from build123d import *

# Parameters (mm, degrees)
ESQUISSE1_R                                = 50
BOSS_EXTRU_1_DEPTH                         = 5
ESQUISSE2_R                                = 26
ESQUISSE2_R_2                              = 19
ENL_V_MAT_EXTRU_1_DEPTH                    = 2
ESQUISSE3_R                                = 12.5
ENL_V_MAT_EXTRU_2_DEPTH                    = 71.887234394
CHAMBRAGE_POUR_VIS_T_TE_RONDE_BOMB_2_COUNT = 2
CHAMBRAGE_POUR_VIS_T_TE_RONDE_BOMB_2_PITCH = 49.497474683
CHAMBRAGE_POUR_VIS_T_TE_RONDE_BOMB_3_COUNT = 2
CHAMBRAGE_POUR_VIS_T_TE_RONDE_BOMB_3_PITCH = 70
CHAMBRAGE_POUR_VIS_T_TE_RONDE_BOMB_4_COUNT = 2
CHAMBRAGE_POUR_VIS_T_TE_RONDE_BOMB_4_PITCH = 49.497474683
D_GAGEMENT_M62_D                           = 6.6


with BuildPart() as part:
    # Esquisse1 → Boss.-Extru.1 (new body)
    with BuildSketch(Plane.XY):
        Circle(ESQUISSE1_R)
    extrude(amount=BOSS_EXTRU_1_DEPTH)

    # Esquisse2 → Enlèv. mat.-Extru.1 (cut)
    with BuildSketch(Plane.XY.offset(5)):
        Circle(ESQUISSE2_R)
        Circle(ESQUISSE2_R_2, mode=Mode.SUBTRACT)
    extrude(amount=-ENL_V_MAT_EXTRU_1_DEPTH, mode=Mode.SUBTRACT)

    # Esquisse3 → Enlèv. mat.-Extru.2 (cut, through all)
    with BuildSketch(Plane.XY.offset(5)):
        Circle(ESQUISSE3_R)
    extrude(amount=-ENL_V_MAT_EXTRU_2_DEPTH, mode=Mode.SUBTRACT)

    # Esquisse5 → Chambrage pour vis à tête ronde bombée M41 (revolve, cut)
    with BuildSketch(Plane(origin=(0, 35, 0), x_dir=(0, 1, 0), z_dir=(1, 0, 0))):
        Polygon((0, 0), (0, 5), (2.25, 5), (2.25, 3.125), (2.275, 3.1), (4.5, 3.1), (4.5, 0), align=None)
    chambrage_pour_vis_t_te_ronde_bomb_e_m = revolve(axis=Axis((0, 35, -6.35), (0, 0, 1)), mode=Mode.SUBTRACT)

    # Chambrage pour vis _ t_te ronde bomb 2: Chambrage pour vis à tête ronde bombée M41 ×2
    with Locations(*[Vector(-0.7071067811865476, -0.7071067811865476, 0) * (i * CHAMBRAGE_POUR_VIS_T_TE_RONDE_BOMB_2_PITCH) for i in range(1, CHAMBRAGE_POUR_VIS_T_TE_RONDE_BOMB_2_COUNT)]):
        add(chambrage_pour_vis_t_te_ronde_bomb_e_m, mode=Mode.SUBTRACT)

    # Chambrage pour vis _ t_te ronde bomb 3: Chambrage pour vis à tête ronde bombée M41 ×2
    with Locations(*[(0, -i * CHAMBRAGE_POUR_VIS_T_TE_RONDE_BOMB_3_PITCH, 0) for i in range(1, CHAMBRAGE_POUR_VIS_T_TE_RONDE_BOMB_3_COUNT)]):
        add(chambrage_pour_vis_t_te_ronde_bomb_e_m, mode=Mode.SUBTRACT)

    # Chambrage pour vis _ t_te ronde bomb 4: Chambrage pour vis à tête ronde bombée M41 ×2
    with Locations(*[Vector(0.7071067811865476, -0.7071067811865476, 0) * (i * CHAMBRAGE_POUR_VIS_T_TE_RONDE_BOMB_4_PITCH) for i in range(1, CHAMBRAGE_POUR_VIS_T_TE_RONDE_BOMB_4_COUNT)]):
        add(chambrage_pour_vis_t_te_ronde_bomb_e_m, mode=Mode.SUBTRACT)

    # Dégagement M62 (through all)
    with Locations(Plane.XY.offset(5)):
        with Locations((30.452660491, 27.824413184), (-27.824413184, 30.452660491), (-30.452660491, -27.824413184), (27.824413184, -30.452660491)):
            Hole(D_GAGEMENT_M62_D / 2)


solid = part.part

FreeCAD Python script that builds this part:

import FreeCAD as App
import Part
import Sketcher
Q = App.Units.Quantity


def add_polygon(sketch, points):
    """Adds a closed chain of lines whose ends are joined by coincident constraints."""
    first, n = sketch.GeometryCount, len(points)
    for a, b in zip(points, points[1:] + points[:1]):
        sketch.addGeometry(Part.LineSegment(App.Vector(*a, 0), App.Vector(*b, 0)), False)
    for i in range(n):
        sketch.addConstraint(Sketcher.Constraint("Coincident", first + i, 2, first + (i + 1) % n, 1))

doc = App.newDocument("Part")
body = doc.addObject("PartDesign::Body", "Body")

sketch1 = body.newObject("Sketcher::SketchObject", "Sketch")
sketch1.AttachmentSupport = (doc.getObject("XY_Plane"), [""])
sketch1.MapMode = "FlatFace"
sketch1.addGeometry(Part.Circle(App.Vector(0, 0, 0), App.Vector(0, 0, 1), 50), False)
sketch1.addConstraint([
    Sketcher.Constraint("Coincident", 0, 3, -1, 1),
    Sketcher.Constraint("Diameter", 0, 100.0),
])
pad1 = body.newObject("PartDesign::Pad", "Pad")
pad1.Profile = sketch1
pad1.Length = 5

sketch2 = body.newObject("Sketcher::SketchObject", "Sketch001")
sketch2.AttachmentSupport = (doc.getObject("XY_Plane"), [""])
sketch2.MapMode = "FlatFace"
sketch2.AttachmentOffset = App.Placement(App.Vector(0, 0, 5), App.Rotation())
sketch2.addGeometry([
    Part.Circle(App.Vector(0, 0, 0), App.Vector(0, 0, 1), 26),
    Part.Circle(App.Vector(0, 0, 0), App.Vector(0, 0, 1), 19),
], False)
sketch2.addConstraint([
    Sketcher.Constraint("Coincident", 0, 3, -1, 1),
    Sketcher.Constraint("Coincident", 1, 3, -1, 1),
    Sketcher.Constraint("Diameter", 0, 52.0),
    Sketcher.Constraint("Diameter", 1, 38.0),
])
pocket1 = body.newObject("PartDesign::Pocket", "Pocket")
pocket1.Profile = sketch2
pocket1.Length = 2

sketch3 = body.newObject("Sketcher::SketchObject", "Sketch002")
sketch3.AttachmentSupport = (doc.getObject("XY_Plane"), [""])
sketch3.MapMode = "FlatFace"
sketch3.AttachmentOffset = App.Placement(App.Vector(0, 0, 5), App.Rotation())
sketch3.addGeometry(Part.Circle(App.Vector(0, 0, 0), App.Vector(0, 0, 1), 12), False)
sketch3.addConstraint([
    Sketcher.Constraint("Coincident", 0, 3, -1, 1),
    Sketcher.Constraint("Diameter", 0, 25.0),
])
pocket2 = body.newObject("PartDesign::Pocket", "Pocket001")
pocket2.Profile = sketch3
pocket2.Type = "ThroughAll"

sketch4 = body.newObject("Sketcher::SketchObject", "Sketch003")
sketch4.AttachmentSupport = (doc.getObject("YZ_Plane"), [""])
sketch4.MapMode = "FlatFace"
add_polygon(sketch4, [(35, 5), (35, 0), (39.5, 0), (39.5, 3.1), (37.275, 3.1), (37.25, 3.125), (37.25, 5)])
sketch4.addGeometry(Part.LineSegment(App.Vector(35, 0, 0), App.Vector(35, 5, 0)), True)
sketch4.addConstraint([
    Sketcher.Constraint("Vertical", 0),
    Sketcher.Constraint("Horizontal", 1),
    Sketcher.Constraint("Vertical", 2),
    Sketcher.Constraint("Horizontal", 3),
    Sketcher.Constraint("Vertical", 5),
    Sketcher.Constraint("Horizontal", 6),
    Sketcher.Constraint("Vertical", 7),
    Sketcher.Constraint("Coincident", 7, 1, 0, 2),
    Sketcher.Constraint("PointOnObject", 0, 2, -1),
    Sketcher.Constraint("Horizontal", 5, 2, 7, 2),
    Sketcher.Constraint("DistanceY", 0, 2, 0, 1, 5.0),
    Sketcher.Constraint("Angle", 4, Q("135 deg")),
    Sketcher.Constraint("DistanceX", 1, 1, 1, 2, 4.5),
    Sketcher.Constraint("DistanceY", 2, 1, 2, 2, 3.1),
    Sketcher.Constraint("DistanceX", -1, 1, 0, 2, 35.0),
    Sketcher.Constraint("DistanceX", 6, 2, 6, 1, 2.25),
    Sketcher.Constraint("DistanceX", 3, 2, 3, 1, 2.225),
])
groove = body.newObject("PartDesign::Groove", "Groove")
groove.Profile = sketch4
groove.ReferenceAxis = (sketch4, ["Axis0"])
groove.Angle = 360
doc.recompute()

datumline = body.newObject("PartDesign::Line", "DatumLine")
datumline.Placement = App.Placement(App.Vector(0, 0, 0), App.Rotation(App.Vector(0, 0, 1), App.Vector(-0.707106781, -0.707106781, 0)))
linearpattern = body.newObject("PartDesign::LinearPattern", "LinearPattern")
linearpattern.Originals = [groove]
linearpattern.Direction = (datumline, [""])
linearpattern.Mode = "offset"
linearpattern.Offset = 49.497475
linearpattern.Occurrences = 2
body.Tip = linearpattern
doc.recompute()

linearpattern2 = body.newObject("PartDesign::LinearPattern", "LinearPattern001")
linearpattern2.Originals = [groove]
linearpattern2.Direction = (doc.getObject("Y_Axis"), [""])
linearpattern2.Mode = "offset"
linearpattern2.Offset = 70
linearpattern2.Occurrences = 2
linearpattern2.Reversed = True
body.Tip = linearpattern2
doc.recompute()

datumline2 = body.newObject("PartDesign::Line", "DatumLine001")
datumline2.Placement = App.Placement(App.Vector(0, 0, 0), App.Rotation(App.Vector(0, 0, 1), App.Vector(0.707106781, -0.707106781, 0)))
linearpattern3 = body.newObject("PartDesign::LinearPattern", "LinearPattern002")
linearpattern3.Originals = [groove]
linearpattern3.Direction = (datumline2, [""])
linearpattern3.Mode = "offset"
linearpattern3.Offset = 49.497475
linearpattern3.Occurrences = 2
body.Tip = linearpattern3

sketch5 = body.newObject("Sketcher::SketchObject", "Sketch004")
sketch5.AttachmentSupport = (doc.getObject("XY_Plane"), [""])
sketch5.MapMode = "FlatFace"
sketch5.AttachmentOffset = App.Placement(App.Vector(0, 0, 5), App.Rotation())
sketch5.addGeometry([
    Part.Circle(App.Vector(30.5, 27.8, 0), App.Vector(0, 0, 1), 3.3),
    Part.Circle(App.Vector(-27.8, 30.5, 0), App.Vector(0, 0, 1), 3.3),
    Part.Circle(App.Vector(-30.5, -27.8, 0), App.Vector(0, 0, 1), 3.3),
    Part.Circle(App.Vector(27.8, -30.5, 0), App.Vector(0, 0, 1), 3.3),
], False)
sketch5.addConstraint([
    Sketcher.Constraint("Equal", 0, 1),
    Sketcher.Constraint("Equal", 1, 2),
    Sketcher.Constraint("Equal", 2, 3),
    Sketcher.Constraint("Symmetric", 0, 3, 2, 3, -1, 1),
    Sketcher.Constraint("Symmetric", 1, 3, 3, 3, -1, 1),
    Sketcher.Constraint("Diameter", 0, 6.6),
    Sketcher.Constraint("DistanceX", -1, 1, 0, 3, 30.45266),
    Sketcher.Constraint("DistanceY", -1, 1, 1, 3, 30.45266),
    Sketcher.Constraint("DistanceY", -1, 1, 0, 3, 27.824413),
    Sketcher.Constraint("DistanceX", 1, 3, -1, 1, 27.824413),
])
doc.recompute()
hole = body.newObject("PartDesign::Hole", "Hole")
hole.Profile = sketch5
hole.ThreadType = "None"
hole.Diameter = 6.6
hole.DepthType = "ThroughAll"

doc.recompute()
